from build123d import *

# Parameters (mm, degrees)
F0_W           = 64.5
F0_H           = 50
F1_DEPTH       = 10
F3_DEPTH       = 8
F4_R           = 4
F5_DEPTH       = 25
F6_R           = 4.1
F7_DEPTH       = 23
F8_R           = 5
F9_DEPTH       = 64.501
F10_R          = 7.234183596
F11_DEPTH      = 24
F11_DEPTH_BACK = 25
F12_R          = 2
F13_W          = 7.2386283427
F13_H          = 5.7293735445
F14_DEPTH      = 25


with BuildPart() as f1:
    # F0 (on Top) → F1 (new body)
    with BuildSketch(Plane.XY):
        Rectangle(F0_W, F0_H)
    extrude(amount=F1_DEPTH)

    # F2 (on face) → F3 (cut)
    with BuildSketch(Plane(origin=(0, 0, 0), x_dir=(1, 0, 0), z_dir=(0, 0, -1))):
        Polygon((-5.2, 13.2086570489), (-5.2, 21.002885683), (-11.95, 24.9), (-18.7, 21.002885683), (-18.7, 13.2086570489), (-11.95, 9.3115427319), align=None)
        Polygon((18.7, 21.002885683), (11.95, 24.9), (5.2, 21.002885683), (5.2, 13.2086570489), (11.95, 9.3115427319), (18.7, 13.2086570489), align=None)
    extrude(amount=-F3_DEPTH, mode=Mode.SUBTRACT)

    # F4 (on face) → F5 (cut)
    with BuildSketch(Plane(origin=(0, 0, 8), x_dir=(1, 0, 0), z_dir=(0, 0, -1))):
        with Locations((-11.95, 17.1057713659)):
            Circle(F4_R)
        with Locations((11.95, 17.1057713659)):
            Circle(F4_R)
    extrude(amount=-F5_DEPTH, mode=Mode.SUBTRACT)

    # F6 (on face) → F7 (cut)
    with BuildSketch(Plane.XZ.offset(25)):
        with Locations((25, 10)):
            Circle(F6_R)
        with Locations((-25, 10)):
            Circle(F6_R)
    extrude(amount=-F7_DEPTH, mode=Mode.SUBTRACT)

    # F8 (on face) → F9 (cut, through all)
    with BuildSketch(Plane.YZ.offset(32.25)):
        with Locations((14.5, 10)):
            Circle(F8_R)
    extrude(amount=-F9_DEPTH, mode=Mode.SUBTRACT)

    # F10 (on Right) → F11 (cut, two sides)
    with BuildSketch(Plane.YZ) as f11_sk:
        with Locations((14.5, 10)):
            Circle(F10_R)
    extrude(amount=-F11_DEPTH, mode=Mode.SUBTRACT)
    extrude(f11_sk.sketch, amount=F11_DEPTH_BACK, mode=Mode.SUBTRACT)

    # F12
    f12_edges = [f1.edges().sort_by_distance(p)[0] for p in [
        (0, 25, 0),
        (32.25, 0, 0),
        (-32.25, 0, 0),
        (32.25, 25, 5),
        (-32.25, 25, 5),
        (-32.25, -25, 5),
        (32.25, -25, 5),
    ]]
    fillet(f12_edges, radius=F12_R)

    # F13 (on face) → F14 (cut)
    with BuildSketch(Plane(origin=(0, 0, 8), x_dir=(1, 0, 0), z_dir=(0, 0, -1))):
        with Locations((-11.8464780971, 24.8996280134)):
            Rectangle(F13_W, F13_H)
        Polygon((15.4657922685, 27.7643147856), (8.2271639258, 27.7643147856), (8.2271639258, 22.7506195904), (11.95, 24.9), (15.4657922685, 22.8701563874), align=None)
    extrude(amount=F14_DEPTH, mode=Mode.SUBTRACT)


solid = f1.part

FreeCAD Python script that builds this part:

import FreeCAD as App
import Part
import Sketcher

V = App.Vector
Q = App.Units.Quantity


def edges_at(feature, points):
    """Names of the edges that pass closest to the given points."""
    edges = feature.Shape.Edges
    near = lambda p: min(range(len(edges)), key=lambda i: edges[i].distToShape(Part.Vertex(*p))[0])
    return sorted({f"Edge{near(p) + 1}" for p in points})


def add_polygon(sketch, points):
    """Adds a closed chain of lines whose ends are joined by coincident constraints."""
    first, n = sketch.GeometryCount, len(points)
    for a, b in zip(points, points[1:] + points[:1]):
        sketch.addGeometry(Part.LineSegment(App.Vector(*a, 0), App.Vector(*b, 0)), False)
    for i in range(n):
        sketch.addConstraint(Sketcher.Constraint("Coincident", first + i, 2, first + (i + 1) % n, 1))

doc = App.newDocument("Part")
body = doc.addObject("PartDesign::Body", "Body")

# Sketch on XY plane
sketch1 = body.newObject("Sketcher::SketchObject", "Sketch")
sketch1.AttachmentSupport = (doc.getObject("XY_Plane"), [""])
sketch1.MapMode = "FlatFace"
add_polygon(sketch1, [(-32.25, 25), (-32.25, -25), (32.25, -25), (32.25, 25)])  # lines 0-3
sketch1.addConstraint([
    Sketcher.Constraint("Vertical", 0),
    Sketcher.Constraint("Horizontal", 1),
    Sketcher.Constraint("Vertical", 2),
    Sketcher.Constraint("Horizontal", 3),
    Sketcher.Constraint("Symmetric", 0, 2, 2, 2, -1, 1),
    Sketcher.Constraint("DistanceY", 0, 2, 0, 1, 50.0),
    Sketcher.Constraint("DistanceX", 1, 1, 1, 2, 64.5),
])
pad1 = body.newObject("PartDesign::Pad", "Pad")
pad1.Profile = sketch1
pad1.Length = 10

# Sketch on XY plane
sketch2 = body.newObject("Sketcher::SketchObject", "Sketch001")
sketch2.AttachmentSupport = (doc.getObject("XY_Plane"), [""])
sketch2.MapMode = "FlatFace"
add_polygon(sketch2, [(-5.2, -13.208657), (-5.2, -21.002886), (-11.95, -24.9), (-18.7, -21.002886), (-18.7, -13.208657), (-11.95, -9.311543)])  # lines 0-5
add_polygon(sketch2, [(18.7, -21.002886), (11.95, -24.9), (5.2, -21.002886), (5.2, -13.208657), (11.95, -9.311543), (18.7, -13.208657)])  # lines 6-11
sketch2.addConstraint([
    Sketcher.Constraint("Vertical", 0),
    Sketcher.Constraint("Vertical", 3),
    Sketcher.Constraint("Vertical", 8),
    Sketcher.Constraint("Vertical", 11),
    Sketcher.Constraint("Symmetric", 1, 2, 6, 2, -2),
    Sketcher.Constraint("Symmetric", 0, 2, 7, 2, -2),
    Sketcher.Constraint("Symmetric", 4, 2, 9, 2, -2),
    Sketcher.Constraint("Symmetric", 3, 2, 10, 2, -2),
    Sketcher.Constraint("Parallel", 1, 4),
    Sketcher.Constraint("Parallel", 2, 5),
    Sketcher.Constraint("Parallel", 4, 6),
    Sketcher.Constraint("Parallel", 5, 7),
    Sketcher.Constraint("Parallel", 6, 9),
    Sketcher.Constraint("Horizontal", 0, 2, 2, 2),
    Sketcher.Constraint("Horizontal", 3, 2, 5, 2),
    Sketcher.Constraint("Angle", 1, Q("-150 deg")),
    Sketcher.Constraint("DistanceX", 0, 2, -1, 1, 5.2),
    Sketcher.Constraint("DistanceY", 1, 2, -1, 1, 24.9),
    Sketcher.Constraint("DistanceX", 2, 2, -1, 1, 18.7),
    Sketcher.Constraint("DistanceY", 0, 2, 0, 1, 7.794229),
])
pocket1 = body.newObject("PartDesign::Pocket", "Pocket")
pocket1.Profile = sketch2
pocket1.Length = 8
pocket1.Reversed = True

# Sketch on XY plane
sketch3 = body.newObject("Sketcher::SketchObject", "Sketch002")
sketch3.AttachmentSupport = (doc.getObject("XY_Plane"), [""])
sketch3.MapMode = "FlatFace"
sketch3.AttachmentOffset = App.Placement(V(0, 0, 8), App.Rotation())
sketch3.addGeometry([
    Part.Circle(V(-11.95, -17.105771, 0), V(0, 0, 1), 4),
    Part.Circle(V(11.95, -17.105771, 0), V(0, 0, 1), 4),
], False)
sketch3.addConstraint([
    Sketcher.Constraint("Equal", 0, 1),
    Sketcher.Constraint("Symmetric", 0, 3, 1, 3, -2),
    Sketcher.Constraint("Diameter", 0, 8.0),
    Sketcher.Constraint("DistanceX", 0, 3, 1, 3, 23.9),
    Sketcher.Constraint("DistanceY", 0, 3, -1, 1, 17.105771),
])
pocket2 = body.newObject("PartDesign::Pocket", "Pocket001")
pocket2.Profile = sketch3
pocket2.Length = 25
pocket2.Reversed = True

# Sketch on XZ plane
sketch4 = body.newObject("Sketcher::SketchObject", "Sketch003")
sketch4.AttachmentSupport = (doc.getObject("XZ_Plane"), [""])
sketch4.MapMode = "FlatFace"
sketch4.AttachmentOffset = App.Placement(V(0, 0, 25), App.Rotation())
sketch4.addGeometry([
    Part.Circle(V(25, 10, 0), V(0, 0, 1), 4.1),
    Part.Circle(V(-25, 10, 0), V(0, 0, 1), 4.1),
], False)
sketch4.addConstraint([
    Sketcher.Constraint("Equal", 0, 1),
    Sketcher.Constraint("Symmetric", 0, 3, 1, 3, -2),
    Sketcher.Constraint("Diameter", 0, 8.2),
    Sketcher.Constraint("DistanceX", -1, 1, 0, 3, 25.0),
    Sketcher.Constraint("DistanceY", -1, 1, 0, 3, 10.0),
])
pocket3 = body.newObject("PartDesign::Pocket", "Pocket002")
pocket3.Profile = sketch4
pocket3.Length = 23

# Sketch on YZ plane
sketch5 = body.newObject("Sketcher::SketchObject", "Sketch004")
sketch5.AttachmentSupport = (doc.getObject("YZ_Plane"), [""])
sketch5.MapMode = "FlatFace"
sketch5.AttachmentOffset = App.Placement(V(0, 0, 32.25), App.Rotation())
sketch5.addGeometry(Part.Circle(V(14.5, 10, 0), V(0, 0, 1), 5), False)
sketch5.addConstraint([
    Sketcher.Constraint("Diameter", 0, 10.0),
    Sketcher.Constraint("DistanceY", -1, 1, 0, 3, 10.0),
    Sketcher.Constraint("DistanceX", -1, 1, 0, 3, 14.5),
])
pocket4 = body.newObject("PartDesign::Pocket", "Pocket003")
pocket4.Profile = sketch5
pocket4.Type = "ThroughAll"

# Sketch on YZ plane
sketch6 = body.newObject("Sketcher::SketchObject", "Sketch005")
sketch6.AttachmentSupport = (doc.getObject("YZ_Plane"), [""])
sketch6.MapMode = "FlatFace"
sketch6.addGeometry(Part.Circle(V(14.5, 10, 0), V(0, 0, 1), 7.234184), False)
sketch6.addConstraint([
    Sketcher.Constraint("DistanceY", -1, 1, 0, 3, 10.0),
    Sketcher.Constraint("DistanceX", -1, 1, 0, 3, 14.5),
    Sketcher.Constraint("Diameter", 0, 14.468367),
])
pocket5 = body.newObject("PartDesign::Pocket", "Pocket004")
pocket5.Profile = sketch6
pocket5.Type = "TwoLengths"
pocket5.Length = 24
pocket5.Length2 = 25
doc.recompute()

fillet = body.newObject("PartDesign::Fillet", "Fillet")
fillet.Base = (pocket5, edges_at(pocket5, [
    (0, 25, 0),
    (32.25, 0, 0),
    (-32.25, 0, 0),
    (32.25, 25, 5),
    (-32.25, 25, 5),
    (-32.25, -25, 5),
    (32.25, -25, 5),
]))
fillet.Radius = 2

# Sketch on XY plane
sketch7 = body.newObject("Sketcher::SketchObject", "Sketch006")
sketch7.AttachmentSupport = (doc.getObject("XY_Plane"), [""])
sketch7.MapMode = "FlatFace"
sketch7.AttachmentOffset = App.Placement(V(0, 0, 8), App.Rotation())
add_polygon(sketch7, [(-15.465792, -27.764315), (-15.465792, -22.034941), (-8.227164, -22.034941), (-8.227164, -27.764315)])  # lines 0-3
add_polygon(sketch7, [(15.465792, -27.764315), (8.227164, -27.764315), (8.227164, -22.75062), (11.95, -24.9), (15.465792, -22.870156)])  # lines 4-8
sketch7.addConstraint([
    Sketcher.Constraint("Vertical", 0),
    Sketcher.Constraint("Horizontal", 1),
    Sketcher.Constraint("Vertical", 2),
    Sketcher.Constraint("Horizontal", 3),
    Sketcher.Constraint("Horizontal", 4),
    Sketcher.Constraint("Vertical", 5),
    Sketcher.Constraint("Vertical", 8),
    Sketcher.Constraint("Symmetric", 2, 2, 4, 2, -2),
    Sketcher.Constraint("Equal", 3, 4),
    Sketcher.Constraint("Angle", 6, Q("-30 deg")),
    Sketcher.Constraint("Angle", 7, Q("30 deg")),
    Sketcher.Constraint("DistanceY", 6, 2, -1, 1, 24.9),
    Sketcher.Constraint("DistanceX", -1, 1, 6, 2, 11.95),
    Sketcher.Constraint("DistanceX", 1, 1, 1, 2, 7.238628),
    Sketcher.Constraint("DistanceY", 8, 2, 8, 1, 4.894158),
    Sketcher.Constraint("Distance", 6, 4.298761),
    Sketcher.Constraint("DistanceY", 0, 1, 0, 2, 5.729374),
])
pocket6 = body.newObject("PartDesign::Pocket", "Pocket005")
pocket6.Profile = sketch7
pocket6.Length = 25

doc.recompute()
